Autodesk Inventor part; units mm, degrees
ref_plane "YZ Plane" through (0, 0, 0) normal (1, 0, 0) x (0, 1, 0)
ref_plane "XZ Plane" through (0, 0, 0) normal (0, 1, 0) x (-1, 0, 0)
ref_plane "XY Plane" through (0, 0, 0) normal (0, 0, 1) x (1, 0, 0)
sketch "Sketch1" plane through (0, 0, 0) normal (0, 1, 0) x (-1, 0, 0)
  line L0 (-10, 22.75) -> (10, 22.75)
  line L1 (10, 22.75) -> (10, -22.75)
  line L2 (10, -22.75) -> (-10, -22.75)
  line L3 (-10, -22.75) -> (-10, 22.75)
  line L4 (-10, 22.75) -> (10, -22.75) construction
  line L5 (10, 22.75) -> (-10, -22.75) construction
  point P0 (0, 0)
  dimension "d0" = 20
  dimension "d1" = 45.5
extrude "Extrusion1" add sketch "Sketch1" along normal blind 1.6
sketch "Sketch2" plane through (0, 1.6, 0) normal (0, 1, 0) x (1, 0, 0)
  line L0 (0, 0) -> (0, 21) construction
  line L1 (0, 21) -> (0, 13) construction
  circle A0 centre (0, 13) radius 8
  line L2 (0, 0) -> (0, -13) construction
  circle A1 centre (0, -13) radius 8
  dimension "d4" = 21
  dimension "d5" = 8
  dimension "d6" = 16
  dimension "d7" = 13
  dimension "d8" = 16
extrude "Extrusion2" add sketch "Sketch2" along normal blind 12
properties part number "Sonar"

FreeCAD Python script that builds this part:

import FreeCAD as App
import Part
import Sketcher

V = App.Vector
Q = App.Units.Quantity

doc = App.newDocument("Part")
body = doc.addObject("PartDesign::Body", "Body")

# Sketch on XZ plane
sketch1 = body.newObject("Sketcher::SketchObject", "Sketch")
sketch1.AttachmentSupport = (doc.getObject("XZ_Plane"), [""])
sketch1.MapMode = "FlatFace"
sketch1.addGeometry(Part.LineSegment(V(-10, 22.75, 0), V(10, 22.75, 0)), False)
sketch1.addGeometry(Part.LineSegment(V(10, 22.75, 0), V(10, -22.75, 0)), False)
sketch1.addGeometry(Part.LineSegment(V(10, -22.75, 0), V(-10, -22.75, 0)), False)
sketch1.addGeometry(Part.LineSegment(V(-10, -22.75, 0), V(-10, 22.75, 0)), False)
sketch1.addConstraint(Sketcher.Constraint("Coincident", 0, 2, 1, 1))
sketch1.addConstraint(Sketcher.Constraint("Coincident", 1, 2, 2, 1))
sketch1.addConstraint(Sketcher.Constraint("Coincident", 2, 2, 3, 1))
sketch1.addConstraint(Sketcher.Constraint("Coincident", 3, 2, 0, 1))
sketch1.addConstraint(Sketcher.Constraint("Horizontal", 0))
sketch1.addConstraint(Sketcher.Constraint("Vertical", 1))
sketch1.addConstraint(Sketcher.Constraint("Horizontal", 2))
sketch1.addConstraint(Sketcher.Constraint("Vertical", 3))
sketch1.addConstraint(Sketcher.Constraint("Symmetric", 0, 2, 2, 2, -1, 1))
sketch1.addConstraint(Sketcher.Constraint("DistanceX", 0, 1, 0, 2, Q("20 mm")))
sketch1.addConstraint(Sketcher.Constraint("DistanceY", 1, 2, 1, 1, Q("45.5 mm")))
pad1 = body.newObject("PartDesign::Pad", "Pad")
pad1.Profile = sketch1
pad1.Length = 1.6
pad1.Reversed = True

# Sketch on XZ plane
sketch2 = body.newObject("Sketcher::SketchObject", "Sketch001")
sketch2.AttachmentSupport = (doc.getObject("XZ_Plane"), [""])
sketch2.MapMode = "FlatFace"
sketch2.AttachmentOffset = App.Placement(V(0, 0, -1.6), App.Rotation())
sketch2.addGeometry(Part.Circle(V(0, -13, 0), V(0, 0, 1), 8), False)
sketch2.addGeometry(Part.Circle(V(0, 13, 0), V(0, 0, 1), 8), False)
sketch2.addConstraint(Sketcher.Constraint("Equal", 0, 1))
sketch2.addConstraint(Sketcher.Constraint("Symmetric", 0, 3, 1, 3, -1, 1))
sketch2.addConstraint(Sketcher.Constraint("PointOnObject", 0, 3, -2))
sketch2.addConstraint(Sketcher.Constraint("Diameter", 0, Q("16 mm")))
sketch2.addConstraint(Sketcher.Constraint("DistanceY", 0, 3, -1, 1, Q("13 mm")))
pad2 = body.newObject("PartDesign::Pad", "Pad001")
pad2.Profile = sketch2
pad2.Length = 12
pad2.Reversed = True

doc.recompute()
